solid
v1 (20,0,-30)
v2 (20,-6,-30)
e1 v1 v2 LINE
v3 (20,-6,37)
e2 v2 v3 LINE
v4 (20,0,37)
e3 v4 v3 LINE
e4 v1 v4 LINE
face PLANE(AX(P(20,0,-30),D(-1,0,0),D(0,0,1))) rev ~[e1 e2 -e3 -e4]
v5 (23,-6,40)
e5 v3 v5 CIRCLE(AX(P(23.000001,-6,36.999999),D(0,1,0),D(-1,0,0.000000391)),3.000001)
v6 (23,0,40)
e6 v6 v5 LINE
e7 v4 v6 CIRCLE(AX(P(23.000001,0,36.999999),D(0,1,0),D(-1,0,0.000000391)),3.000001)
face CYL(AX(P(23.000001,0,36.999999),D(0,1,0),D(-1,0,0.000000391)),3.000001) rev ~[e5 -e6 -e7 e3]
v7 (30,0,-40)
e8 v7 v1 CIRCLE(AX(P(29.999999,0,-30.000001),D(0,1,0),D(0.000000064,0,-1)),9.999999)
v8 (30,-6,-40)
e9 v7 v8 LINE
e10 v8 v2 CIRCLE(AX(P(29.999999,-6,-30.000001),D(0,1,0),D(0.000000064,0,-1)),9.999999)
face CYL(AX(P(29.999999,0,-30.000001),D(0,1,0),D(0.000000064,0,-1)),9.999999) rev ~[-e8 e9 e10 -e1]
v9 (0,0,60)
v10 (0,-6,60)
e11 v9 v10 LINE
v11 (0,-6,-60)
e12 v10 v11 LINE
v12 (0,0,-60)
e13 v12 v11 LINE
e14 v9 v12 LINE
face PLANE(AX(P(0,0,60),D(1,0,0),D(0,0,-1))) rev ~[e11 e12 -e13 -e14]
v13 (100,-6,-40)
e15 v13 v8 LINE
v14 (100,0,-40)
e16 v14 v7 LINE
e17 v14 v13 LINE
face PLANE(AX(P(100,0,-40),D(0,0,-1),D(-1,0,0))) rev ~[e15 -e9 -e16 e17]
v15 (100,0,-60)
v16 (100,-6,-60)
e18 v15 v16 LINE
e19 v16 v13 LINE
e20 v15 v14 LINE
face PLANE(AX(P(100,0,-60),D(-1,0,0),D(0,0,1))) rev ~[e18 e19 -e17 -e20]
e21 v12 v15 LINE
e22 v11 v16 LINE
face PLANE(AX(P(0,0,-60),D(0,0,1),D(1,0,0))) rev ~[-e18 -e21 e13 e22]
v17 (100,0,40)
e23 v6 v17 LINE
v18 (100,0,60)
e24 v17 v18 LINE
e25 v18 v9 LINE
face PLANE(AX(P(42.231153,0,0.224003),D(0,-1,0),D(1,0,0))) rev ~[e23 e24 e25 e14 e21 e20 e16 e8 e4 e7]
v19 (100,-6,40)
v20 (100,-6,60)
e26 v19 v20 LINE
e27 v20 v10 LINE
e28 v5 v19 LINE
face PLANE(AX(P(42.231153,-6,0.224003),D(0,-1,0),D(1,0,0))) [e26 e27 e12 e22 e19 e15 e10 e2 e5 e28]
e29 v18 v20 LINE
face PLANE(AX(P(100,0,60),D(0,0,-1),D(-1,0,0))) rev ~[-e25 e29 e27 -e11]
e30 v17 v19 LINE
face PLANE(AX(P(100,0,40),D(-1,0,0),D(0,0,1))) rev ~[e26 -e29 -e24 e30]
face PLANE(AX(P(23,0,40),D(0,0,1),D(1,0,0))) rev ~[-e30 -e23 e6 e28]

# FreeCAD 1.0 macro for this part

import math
import FreeCAD as App
import Part
import Sketcher
from FreeCAD import Vector

doc = App.newDocument("Part")
body = doc.addObject("PartDesign::Body", "Body")

# Sketch on XZ plane
sketch1 = body.newObject("Sketcher::SketchObject", "Sketch")
sketch1.AttachmentSupport = (doc.getObject("XZ_Plane"), [""])
sketch1.MapMode = "FlatFace"
sketch1.addGeometry([
    Part.LineSegment(Vector(100, 60, 0), Vector(0, 60, 0)),  # 0
    Part.LineSegment(Vector(0, 60, 0), Vector(0, -60, 0)),  # 1
    Part.LineSegment(Vector(0, -60, 0), Vector(100, -60, 0)),  # 2
    Part.LineSegment(Vector(100, -60, 0), Vector(100, -40, 0)),  # 3
    Part.LineSegment(Vector(100, -40, 0), Vector(30, -40, 0)),  # 4
    Part.ArcOfCircle(Part.Circle(Vector(30, -30, 0), Vector(0, 0, 1), 10), math.radians(180), math.radians(270)),  # 5
    Part.LineSegment(Vector(20, -30, 0), Vector(20, 37, 0)),  # 6
    Part.ArcOfCircle(Part.Circle(Vector(23, 37, 0), Vector(0, 0, 1), 3), math.radians(90), math.radians(180)),  # 7
    Part.LineSegment(Vector(23, 40, 0), Vector(100, 40, 0)),  # 8
    Part.LineSegment(Vector(100, 40, 0), Vector(100, 60, 0)),  # 9
], False)
sketch1.addConstraint([
    Sketcher.Constraint("Coincident", 0, 2, 1, 1),
    Sketcher.Constraint("Coincident", 1, 2, 2, 1),
    Sketcher.Constraint("Coincident", 2, 2, 3, 1),
    Sketcher.Constraint("Coincident", 3, 2, 4, 1),
    Sketcher.Constraint("Tangent", 4, 2, 5, 2),
    Sketcher.Constraint("Tangent", 5, 1, 6, 1),
    Sketcher.Constraint("Tangent", 6, 2, 7, 2),
    Sketcher.Constraint("Tangent", 7, 1, 8, 1),
    Sketcher.Constraint("Coincident", 8, 2, 9, 1),
    Sketcher.Constraint("Coincident", 9, 2, 0, 1),
    Sketcher.Constraint("Horizontal", 0),
    Sketcher.Constraint("Vertical", 1),
    Sketcher.Constraint("Horizontal", 2),
    Sketcher.Constraint("Vertical", 3),
    Sketcher.Constraint("Horizontal", 4),
    Sketcher.Constraint("Vertical", 6),
    Sketcher.Constraint("Horizontal", 8),
    Sketcher.Constraint("Vertical", 9),
    Sketcher.Constraint("Symmetric", 0, 2, 1, 2, -1, 1),
    Sketcher.Constraint("Symmetric", 3, 2, 8, 2, -1),
    Sketcher.Constraint("Radius", 5, 9.999999),
    Sketcher.Constraint("Radius", 7, 3.000001),
    Sketcher.Constraint("DistanceX", 0, 2, 0, 1, 100.0),
    Sketcher.Constraint("DistanceX", 4, 2, 4, 1, 70.0),
    Sketcher.Constraint("DistanceY", 1, 2, 1, 1, 120.0),
    Sketcher.Constraint("DistanceY", 3, 1, 3, 2, 20.0),
])
pad1 = body.newObject("PartDesign::Pad", "Pad")
pad1.Profile = sketch1
pad1.Length = 6

doc.recompute()
